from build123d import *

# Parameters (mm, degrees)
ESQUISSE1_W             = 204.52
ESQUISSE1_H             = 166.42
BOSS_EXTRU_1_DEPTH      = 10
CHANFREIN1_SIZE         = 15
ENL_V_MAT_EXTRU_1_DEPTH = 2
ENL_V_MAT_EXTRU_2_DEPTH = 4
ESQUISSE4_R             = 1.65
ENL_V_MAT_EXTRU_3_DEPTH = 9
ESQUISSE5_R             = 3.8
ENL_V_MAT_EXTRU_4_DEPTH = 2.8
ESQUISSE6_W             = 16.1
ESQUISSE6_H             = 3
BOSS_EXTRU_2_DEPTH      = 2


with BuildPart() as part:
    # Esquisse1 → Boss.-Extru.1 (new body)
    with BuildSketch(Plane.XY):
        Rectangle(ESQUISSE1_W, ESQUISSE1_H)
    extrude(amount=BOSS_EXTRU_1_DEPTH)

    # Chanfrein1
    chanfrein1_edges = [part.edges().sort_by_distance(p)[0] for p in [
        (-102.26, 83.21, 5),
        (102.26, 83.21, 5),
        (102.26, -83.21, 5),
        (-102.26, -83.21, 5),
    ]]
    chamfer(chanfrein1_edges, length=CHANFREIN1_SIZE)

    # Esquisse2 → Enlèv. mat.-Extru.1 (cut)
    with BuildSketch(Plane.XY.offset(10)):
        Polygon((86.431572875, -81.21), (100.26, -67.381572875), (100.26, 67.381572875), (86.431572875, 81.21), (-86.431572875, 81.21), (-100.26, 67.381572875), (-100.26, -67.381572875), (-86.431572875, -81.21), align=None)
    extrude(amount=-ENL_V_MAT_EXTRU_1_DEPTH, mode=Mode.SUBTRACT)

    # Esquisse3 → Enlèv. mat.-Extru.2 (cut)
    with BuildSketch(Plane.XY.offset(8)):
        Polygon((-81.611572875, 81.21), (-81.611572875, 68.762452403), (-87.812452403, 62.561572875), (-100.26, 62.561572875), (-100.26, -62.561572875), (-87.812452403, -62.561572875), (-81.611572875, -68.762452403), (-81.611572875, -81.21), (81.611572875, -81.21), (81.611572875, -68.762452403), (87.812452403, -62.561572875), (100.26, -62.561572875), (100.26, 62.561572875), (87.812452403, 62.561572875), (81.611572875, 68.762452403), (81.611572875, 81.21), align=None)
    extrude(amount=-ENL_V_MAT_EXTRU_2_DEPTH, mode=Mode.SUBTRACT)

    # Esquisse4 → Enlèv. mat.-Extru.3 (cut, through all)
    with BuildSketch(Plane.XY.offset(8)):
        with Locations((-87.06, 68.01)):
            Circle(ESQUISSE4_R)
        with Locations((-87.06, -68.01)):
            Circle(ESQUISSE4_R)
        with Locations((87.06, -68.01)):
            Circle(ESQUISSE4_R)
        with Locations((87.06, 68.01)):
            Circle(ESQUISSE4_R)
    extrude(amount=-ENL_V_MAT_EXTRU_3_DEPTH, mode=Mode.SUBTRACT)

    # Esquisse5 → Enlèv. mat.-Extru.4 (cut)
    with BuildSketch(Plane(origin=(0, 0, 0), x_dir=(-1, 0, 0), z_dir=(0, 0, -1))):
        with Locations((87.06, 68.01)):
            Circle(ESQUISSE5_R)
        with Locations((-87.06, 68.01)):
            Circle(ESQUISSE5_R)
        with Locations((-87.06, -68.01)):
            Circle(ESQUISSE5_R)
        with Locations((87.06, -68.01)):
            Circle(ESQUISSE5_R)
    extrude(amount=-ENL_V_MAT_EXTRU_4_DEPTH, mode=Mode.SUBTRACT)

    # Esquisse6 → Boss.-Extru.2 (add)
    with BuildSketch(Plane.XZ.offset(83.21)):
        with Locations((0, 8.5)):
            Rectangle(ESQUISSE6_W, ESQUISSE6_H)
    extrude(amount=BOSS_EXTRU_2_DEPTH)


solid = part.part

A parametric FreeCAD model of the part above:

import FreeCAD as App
import Part
import Sketcher

V = App.Vector


def edges_at(feature, points):
    """Names of the edges that pass closest to the given points."""
    edges = feature.Shape.Edges
    near = lambda p: min(range(len(edges)), key=lambda i: edges[i].distToShape(Part.Vertex(*p))[0])
    return sorted({f"Edge{near(p) + 1}" for p in points})


def add_polygon(sketch, points):
    """Adds a closed chain of lines whose ends are joined by coincident constraints."""
    first, n = sketch.GeometryCount, len(points)
    for a, b in zip(points, points[1:] + points[:1]):
        sketch.addGeometry(Part.LineSegment(App.Vector(*a, 0), App.Vector(*b, 0)), False)
    for i in range(n):
        sketch.addConstraint(Sketcher.Constraint("Coincident", first + i, 2, first + (i + 1) % n, 1))

doc = App.newDocument("Part")
params = doc.addObject("Spreadsheet::Sheet", "Params")
for row, (alias, value) in enumerate([
    ("sketch1_width", "204.52 mm"),
    ("sketch1_height", "166.42 mm"),
    ("pad1_length", "10 mm"),
    ("chamfer_size", "15 mm"),
    ("pocket1_length", "2 mm"),
    ("pocket2_length", "4 mm"),
    ("sketch4_diameter", "3.3 mm"),
    ("sketch5_diameter", "7.6 mm"),
    ("pocket4_length", "2.8 mm"),
    ("sketch6_height", "3 mm"),
    ("sketch6_width", "16.1 mm"),
    ("pad2_length", "2 mm"),
], start=1):
    params.set(f"A{row}", alias)
    params.set(f"B{row}", "=" + value)
    params.setAlias(f"B{row}", alias)

body = doc.addObject("PartDesign::Body", "Body")

sketch1 = body.newObject("Sketcher::SketchObject", "Sketch")
sketch1.AttachmentSupport = (doc.getObject("XY_Plane"), [""])
sketch1.MapMode = "FlatFace"
add_polygon(sketch1, [(-102, 83), (-102, -83), (102, -83), (102, 83)])
sketch1.addConstraint(Sketcher.Constraint("Vertical", 0))
sketch1.addConstraint(Sketcher.Constraint("Horizontal", 1))
sketch1.addConstraint(Sketcher.Constraint("Vertical", 2))
sketch1.addConstraint(Sketcher.Constraint("Horizontal", 3))
sketch1.addConstraint(Sketcher.Constraint("Symmetric", 0, 2, 2, 2, -1, 1))
sketch1.addConstraint(Sketcher.Constraint("DistanceX", 1, 1, 1, 2, 204.52))
sketch1.addConstraint(Sketcher.Constraint("DistanceY", 0, 2, 0, 1, 166.42))
sketch1.setExpression("Constraints[9]", "Params.sketch1_width")
sketch1.setExpression("Constraints[10]", "Params.sketch1_height")
pad1 = body.newObject("PartDesign::Pad", "Pad")
pad1.Profile = sketch1
pad1.setExpression("Length", "Params.pad1_length")
doc.recompute()

chamfer = body.newObject("PartDesign::Chamfer", "Chamfer")
chamfer.Base = (pad1, edges_at(pad1, [
    (-102.26, 83.21, 5),
    (102.26, 83.21, 5),
    (102.26, -83.21, 5),
    (-102.26, -83.21, 5),
]))
chamfer.setExpression("Size", "Params.chamfer_size")

sketch2 = body.newObject("Sketcher::SketchObject", "Sketch001")
sketch2.AttachmentSupport = (doc.getObject("XY_Plane"), [""])
sketch2.MapMode = "FlatFace"
sketch2.AttachmentOffset = App.Placement(V(0, 0, 10), App.Rotation())
add_polygon(sketch2, [(86, -81), (100, -67), (100, 67), (86, 81), (-86, 81), (-100, 67), (-100, -67), (-86, -81)])
sketch2.addConstraint(Sketcher.Constraint("Vertical", 1))
sketch2.addConstraint(Sketcher.Constraint("Horizontal", 3))
sketch2.addConstraint(Sketcher.Constraint("Vertical", 5))
sketch2.addConstraint(Sketcher.Constraint("Horizontal", 7))
sketch2.addConstraint(Sketcher.Constraint("Symmetric", 0, 2, 4, 2, -1, 1))
sketch2.addConstraint(Sketcher.Constraint("Symmetric", 2, 2, 6, 2, -1, 1))
sketch2.addConstraint(Sketcher.Constraint("Perpendicular", 0, 2))
sketch2.addConstraint(Sketcher.Constraint("Perpendicular", 2, 4))
sketch2.addConstraint(Sketcher.Constraint("Perpendicular", 4, 6))
sketch2.addConstraint(Sketcher.Constraint("Horizontal", 1, 2, 4, 2))
sketch2.addConstraint(Sketcher.Constraint("Vertical", 3, 2, 6, 2))
sketch2.addConstraint(Sketcher.Constraint("DistanceX", -1, 1, 0, 2, 100.26))
sketch2.addConstraint(Sketcher.Constraint("DistanceY", -1, 1, 2, 2, 81.21))
sketch2.addConstraint(Sketcher.Constraint("Distance", 0, 19.556349))
pocket1 = body.newObject("PartDesign::Pocket", "Pocket")
pocket1.Profile = sketch2
pocket1.setExpression("Length", "Params.pocket1_length")

sketch3 = body.newObject("Sketcher::SketchObject", "Sketch002")
sketch3.AttachmentSupport = (doc.getObject("XY_Plane"), [""])
sketch3.MapMode = "FlatFace"
sketch3.AttachmentOffset = App.Placement(V(0, 0, 8), App.Rotation())
add_polygon(sketch3, [(-82, 81), (-82, 69), (-88, 63), (-100, 63), (-100, -63), (-88, -63), (-82, -69), (-82, -81), (82, -81), (82, -69), (88, -63), (100, -63), (100, 63), (88, 63), (82, 69), (82, 81)])
sketch3.addConstraint(Sketcher.Constraint("Vertical", 0))
sketch3.addConstraint(Sketcher.Constraint("Horizontal", 2))
sketch3.addConstraint(Sketcher.Constraint("Vertical", 3))
sketch3.addConstraint(Sketcher.Constraint("Horizontal", 4))
sketch3.addConstraint(Sketcher.Constraint("Vertical", 6))
sketch3.addConstraint(Sketcher.Constraint("Horizontal", 7))
sketch3.addConstraint(Sketcher.Constraint("Vertical", 8))
sketch3.addConstraint(Sketcher.Constraint("Horizontal", 10))
sketch3.addConstraint(Sketcher.Constraint("Vertical", 11))
sketch3.addConstraint(Sketcher.Constraint("Horizontal", 12))
sketch3.addConstraint(Sketcher.Constraint("Vertical", 14))
sketch3.addConstraint(Sketcher.Constraint("Horizontal", 15))
sketch3.addConstraint(Sketcher.Constraint("Symmetric", 0, 2, 8, 2, -1, 1))
sketch3.addConstraint(Sketcher.Constraint("Symmetric", 1, 2, 9, 2, -1, 1))
sketch3.addConstraint(Sketcher.Constraint("Symmetric", 3, 2, 11, 2, -1, 1))
sketch3.addConstraint(Sketcher.Constraint("Symmetric", 5, 2, 13, 2, -1, 1))
sketch3.addConstraint(Sketcher.Constraint("Symmetric", 5, 2, 8, 2, -2))
sketch3.addConstraint(Sketcher.Constraint("Symmetric", 4, 2, 9, 2, -2))
sketch3.addConstraint(Sketcher.Constraint("Perpendicular", 1, 5))
sketch3.addConstraint(Sketcher.Constraint("Perpendicular", 9, 13))
sketch3.addConstraint(Sketcher.Constraint("Equal", 12, 0))
sketch3.addConstraint(Sketcher.Constraint("Equal", 0, 6))
sketch3.addConstraint(Sketcher.Constraint("DistanceX", 2, 2, -1, 1, 100.26))
sketch3.addConstraint(Sketcher.Constraint("DistanceY", 6, 2, -1, 1, 81.21))
sketch3.addConstraint(Sketcher.Constraint("DistanceX", 2, 2, 2, 1, 12.447548))
sketch3.addConstraint(Sketcher.Constraint("DistanceX", 7, 1, 7, 2, 163.223146))
pocket2 = body.newObject("PartDesign::Pocket", "Pocket001")
pocket2.Profile = sketch3
pocket2.setExpression("Length", "Params.pocket2_length")

sketch4 = body.newObject("Sketcher::SketchObject", "Sketch003")
sketch4.AttachmentSupport = (doc.getObject("XY_Plane"), [""])
sketch4.MapMode = "FlatFace"
sketch4.AttachmentOffset = App.Placement(V(0, 0, 8), App.Rotation())
sketch4.addGeometry(Part.Circle(V(-87.1, 68, 0), V(0, 0, 1), 1.6), False)
sketch4.addGeometry(Part.Circle(V(-87.1, -68, 0), V(0, 0, 1), 1.6), False)
sketch4.addGeometry(Part.Circle(V(87.1, -68, 0), V(0, 0, 1), 1.6), False)
sketch4.addGeometry(Part.Circle(V(87.1, 68, 0), V(0, 0, 1), 1.6), False)
sketch4.addConstraint(Sketcher.Constraint("Equal", 0, 1))
sketch4.addConstraint(Sketcher.Constraint("Equal", 1, 2))
sketch4.addConstraint(Sketcher.Constraint("Equal", 2, 3))
sketch4.addConstraint(Sketcher.Constraint("Symmetric", 0, 3, 2, 3, -1, 1))
sketch4.addConstraint(Sketcher.Constraint("Symmetric", 1, 3, 3, 3, -1, 1))
sketch4.addConstraint(Sketcher.Constraint("Symmetric", 1, 3, 2, 3, -2))
sketch4.addConstraint(Sketcher.Constraint("Diameter", 0, 3.3))
sketch4.addConstraint(Sketcher.Constraint("DistanceX", 0, 3, -1, 1, 87.06))
sketch4.addConstraint(Sketcher.Constraint("DistanceY", -1, 1, 0, 3, 68.01))
sketch4.setExpression("Constraints[6]", "Params.sketch4_diameter")
pocket3 = body.newObject("PartDesign::Pocket", "Pocket002")
pocket3.Profile = sketch4
pocket3.Type = "ThroughAll"

sketch5 = body.newObject("Sketcher::SketchObject", "Sketch004")
sketch5.AttachmentSupport = (doc.getObject("XY_Plane"), [""])
sketch5.MapMode = "FlatFace"
sketch5.addGeometry(Part.Circle(V(-87.1, 68, 0), V(0, 0, 1), 3.8), False)
sketch5.addGeometry(Part.Circle(V(87.1, 68, 0), V(0, 0, 1), 3.8), False)
sketch5.addGeometry(Part.Circle(V(87.1, -68, 0), V(0, 0, 1), 3.8), False)
sketch5.addGeometry(Part.Circle(V(-87.1, -68, 0), V(0, 0, 1), 3.8), False)
sketch5.addConstraint(Sketcher.Constraint("Equal", 0, 1))
sketch5.addConstraint(Sketcher.Constraint("Equal", 1, 2))
sketch5.addConstraint(Sketcher.Constraint("Equal", 2, 3))
sketch5.addConstraint(Sketcher.Constraint("Symmetric", 0, 3, 2, 3, -1, 1))
sketch5.addConstraint(Sketcher.Constraint("Symmetric", 1, 3, 3, 3, -1, 1))
sketch5.addConstraint(Sketcher.Constraint("Symmetric", 0, 3, 1, 3, -2))
sketch5.addConstraint(Sketcher.Constraint("Diameter", 0, 7.6))
sketch5.addConstraint(Sketcher.Constraint("DistanceX", 0, 3, -1, 1, 87.06))
sketch5.addConstraint(Sketcher.Constraint("DistanceY", -1, 1, 0, 3, 68.01))
sketch5.setExpression("Constraints[6]", "Params.sketch5_diameter")
pocket4 = body.newObject("PartDesign::Pocket", "Pocket003")
pocket4.Profile = sketch5
pocket4.setExpression("Length", "Params.pocket4_length")
pocket4.Reversed = True

sketch6 = body.newObject("Sketcher::SketchObject", "Sketch005")
sketch6.AttachmentSupport = (doc.getObject("XZ_Plane"), [""])
sketch6.MapMode = "FlatFace"
sketch6.AttachmentOffset = App.Placement(V(0, 0, 83.21), App.Rotation())
add_polygon(sketch6, [(-8.1, 10), (-8.1, 7), (8.1, 7), (8.1, 10)])
sketch6.addConstraint(Sketcher.Constraint("Vertical", 0))
sketch6.addConstraint(Sketcher.Constraint("Horizontal", 1))
sketch6.addConstraint(Sketcher.Constraint("Vertical", 2))
sketch6.addConstraint(Sketcher.Constraint("Horizontal", 3))
sketch6.addConstraint(Sketcher.Constraint("DistanceY", 0, 2, 0, 1, 3.0))
sketch6.addConstraint(Sketcher.Constraint("DistanceX", 1, 1, 1, 2, 16.1))
sketch6.addConstraint(Sketcher.Constraint("DistanceY", -1, 1, 0, 2, 7.0))
sketch6.addConstraint(Sketcher.Constraint("DistanceX", 0, 2, -1, 1, 8.05))
sketch6.setExpression("Constraints[8]", "Params.sketch6_height")
sketch6.setExpression("Constraints[9]", "Params.sketch6_width")
pad2 = body.newObject("PartDesign::Pad", "Pad001")
pad2.Profile = sketch6
pad2.setExpression("Length", "Params.pad2_length")

doc.recompute()
